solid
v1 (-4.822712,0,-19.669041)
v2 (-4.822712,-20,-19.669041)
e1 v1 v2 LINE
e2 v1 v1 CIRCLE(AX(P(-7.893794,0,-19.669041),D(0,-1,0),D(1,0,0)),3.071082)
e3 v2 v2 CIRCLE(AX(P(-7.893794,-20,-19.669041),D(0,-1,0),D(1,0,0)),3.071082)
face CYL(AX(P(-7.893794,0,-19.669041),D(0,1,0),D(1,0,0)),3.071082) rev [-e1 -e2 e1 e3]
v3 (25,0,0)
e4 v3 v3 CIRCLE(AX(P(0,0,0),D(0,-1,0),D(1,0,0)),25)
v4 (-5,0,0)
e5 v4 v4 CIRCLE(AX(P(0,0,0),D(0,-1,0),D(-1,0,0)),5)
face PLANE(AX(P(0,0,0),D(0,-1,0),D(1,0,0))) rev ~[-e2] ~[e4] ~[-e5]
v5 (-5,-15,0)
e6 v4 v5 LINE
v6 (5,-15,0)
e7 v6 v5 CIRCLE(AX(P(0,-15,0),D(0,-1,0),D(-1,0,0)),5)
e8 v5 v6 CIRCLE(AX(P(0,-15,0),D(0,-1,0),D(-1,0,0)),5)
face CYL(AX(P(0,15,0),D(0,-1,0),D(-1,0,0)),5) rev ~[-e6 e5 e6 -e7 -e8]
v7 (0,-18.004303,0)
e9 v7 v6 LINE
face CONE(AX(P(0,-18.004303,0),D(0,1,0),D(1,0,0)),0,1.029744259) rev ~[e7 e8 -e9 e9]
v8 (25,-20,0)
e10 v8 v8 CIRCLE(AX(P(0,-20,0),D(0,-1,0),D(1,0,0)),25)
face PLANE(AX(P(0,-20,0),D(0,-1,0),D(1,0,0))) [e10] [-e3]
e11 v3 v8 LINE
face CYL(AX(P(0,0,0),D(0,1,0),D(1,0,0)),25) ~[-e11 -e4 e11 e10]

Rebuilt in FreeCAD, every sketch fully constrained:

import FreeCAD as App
import Part
import Sketcher

V = App.Vector

doc = App.newDocument("Part")
body = doc.addObject("PartDesign::Body", "Body")

sketch1 = doc.addObject("Sketcher::SketchObject", "Sketch")
body.addObject(sketch1)
sketch1.AttachmentSupport = (doc.XZ_Plane, [""])
sketch1.MapMode = "FlatFace"
sketch1.addGeometry([
    Part.Circle(V(0, 0, 0), V(0, 0, 1), 25),
    Part.Circle(V(-7.9, -19.7, 0), V(0, 0, 1), 3.1),
], False)
sketch1.addConstraint([
    Sketcher.Constraint("Coincident", 0, 3, -1, 1),
    Sketcher.Constraint("Diameter", 0, 50.0),
    Sketcher.Constraint("Diameter", 1, 6.142165),
    Sketcher.Constraint("DistanceY", 1, 3, -1, 1, 19.669041),
    Sketcher.Constraint("DistanceX", 1, 3, -1, 1, 7.893794),
])
pad1 = doc.addObject("PartDesign::Pad", "Pad")
body.addObject(pad1)
pad1.Profile = sketch1
pad1.Length = 20

sketch2 = doc.addObject("Sketcher::SketchObject", "Sketch001")
body.addObject(sketch2)
sketch2.AttachmentSupport = (doc.XZ_Plane, [""])
sketch2.MapMode = "FlatFace"
sketch2.addGeometry(Part.Circle(V(0, 0, 0), V(0, 0, 1), 5), False)
sketch2.addConstraint([
    Sketcher.Constraint("Coincident", 0, 3, -1, 1),
    Sketcher.Constraint("Diameter", 0, 10.0),
])
doc.recompute()
hole = doc.addObject("PartDesign::Hole", "Hole")
body.addObject(hole)
hole.Profile = sketch2
hole.ThreadType = "None"
hole.Diameter = 10
hole.DepthType = "Dimension"
hole.Depth = 15
hole.DrillPoint = "Angled"
hole.DrillPointAngle = 118
hole.Reversed = True

doc.recompute()
